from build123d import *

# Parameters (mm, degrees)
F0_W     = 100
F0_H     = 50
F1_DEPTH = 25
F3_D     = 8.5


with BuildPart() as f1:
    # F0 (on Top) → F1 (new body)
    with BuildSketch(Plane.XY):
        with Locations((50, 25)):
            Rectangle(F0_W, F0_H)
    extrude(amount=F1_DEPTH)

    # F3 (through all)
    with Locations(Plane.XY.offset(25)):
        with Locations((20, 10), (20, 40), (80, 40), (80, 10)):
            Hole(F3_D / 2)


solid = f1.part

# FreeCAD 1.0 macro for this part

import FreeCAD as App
import Part
import Sketcher
from FreeCAD import Vector

doc = App.newDocument("Part")
body = doc.addObject("PartDesign::Body", "Body")

# Sketch on XY plane
sketch1 = body.newObject("Sketcher::SketchObject", "Sketch")
sketch1.AttachmentSupport = (doc.getObject("XY_Plane"), [""])
sketch1.MapMode = "FlatFace"
sketch1.addGeometry(Part.LineSegment(Vector(0, 50, 0), Vector(0, 0, 0)), False)
sketch1.addGeometry(Part.LineSegment(Vector(0, 0, 0), Vector(100, 0, 0)), False)
sketch1.addGeometry(Part.LineSegment(Vector(100, 0, 0), Vector(100, 50, 0)), False)
sketch1.addGeometry(Part.LineSegment(Vector(100, 50, 0), Vector(0, 50, 0)), False)
sketch1.addConstraint(Sketcher.Constraint("Coincident", 0, 2, 1, 1))
sketch1.addConstraint(Sketcher.Constraint("Coincident", 1, 2, 2, 1))
sketch1.addConstraint(Sketcher.Constraint("Coincident", 2, 2, 3, 1))
sketch1.addConstraint(Sketcher.Constraint("Coincident", 3, 2, 0, 1))
sketch1.addConstraint(Sketcher.Constraint("Vertical", 0))
sketch1.addConstraint(Sketcher.Constraint("Horizontal", 1))
sketch1.addConstraint(Sketcher.Constraint("Vertical", 2))
sketch1.addConstraint(Sketcher.Constraint("Horizontal", 3))
sketch1.addConstraint(Sketcher.Constraint("Coincident", 0, 2, -1, 1))
sketch1.addConstraint(Sketcher.Constraint("DistanceX", 1, 1, 1, 2, 100.0))
sketch1.addConstraint(Sketcher.Constraint("DistanceY", 0, 2, 0, 1, 50.0))
pad1 = body.newObject("PartDesign::Pad", "Pad")
pad1.Profile = sketch1
pad1.Length = 25

# Sketch on XY plane
sketch2 = body.newObject("Sketcher::SketchObject", "Sketch001")
sketch2.AttachmentSupport = (doc.getObject("XY_Plane"), [""])
sketch2.MapMode = "FlatFace"
sketch2.AttachmentOffset = App.Placement(Vector(0, 0, 25), App.Rotation())
sketch2.addGeometry(Part.Circle(Vector(20, 10, 0), Vector(0, 0, 1), 4.2), False)
sketch2.addGeometry(Part.Circle(Vector(20, 40, 0), Vector(0, 0, 1), 4.2), False)
sketch2.addGeometry(Part.Circle(Vector(80, 40, 0), Vector(0, 0, 1), 4.2), False)
sketch2.addGeometry(Part.Circle(Vector(80, 10, 0), Vector(0, 0, 1), 4.2), False)
sketch2.addConstraint(Sketcher.Constraint("Equal", 0, 1))
sketch2.addConstraint(Sketcher.Constraint("Equal", 1, 2))
sketch2.addConstraint(Sketcher.Constraint("Equal", 2, 3))
sketch2.addConstraint(Sketcher.Constraint("Horizontal", 1, 3, 2, 3))
sketch2.addConstraint(Sketcher.Constraint("Horizontal", 0, 3, 3, 3))
sketch2.addConstraint(Sketcher.Constraint("Vertical", 0, 3, 1, 3))
sketch2.addConstraint(Sketcher.Constraint("Vertical", 2, 3, 3, 3))
sketch2.addConstraint(Sketcher.Constraint("Diameter", 0, 8.5))
sketch2.addConstraint(Sketcher.Constraint("DistanceX", -1, 1, 0, 3, 20.0))
sketch2.addConstraint(Sketcher.Constraint("DistanceY", -1, 1, 0, 3, 10.0))
sketch2.addConstraint(Sketcher.Constraint("DistanceY", -1, 1, 1, 3, 40.0))
sketch2.addConstraint(Sketcher.Constraint("DistanceX", -1, 1, 2, 3, 80.0))
doc.recompute()
hole = body.newObject("PartDesign::Hole", "Hole")
hole.Profile = sketch2
hole.ThreadType = "None"
hole.Diameter = 8.5
hole.DepthType = "ThroughAll"

doc.recompute()
